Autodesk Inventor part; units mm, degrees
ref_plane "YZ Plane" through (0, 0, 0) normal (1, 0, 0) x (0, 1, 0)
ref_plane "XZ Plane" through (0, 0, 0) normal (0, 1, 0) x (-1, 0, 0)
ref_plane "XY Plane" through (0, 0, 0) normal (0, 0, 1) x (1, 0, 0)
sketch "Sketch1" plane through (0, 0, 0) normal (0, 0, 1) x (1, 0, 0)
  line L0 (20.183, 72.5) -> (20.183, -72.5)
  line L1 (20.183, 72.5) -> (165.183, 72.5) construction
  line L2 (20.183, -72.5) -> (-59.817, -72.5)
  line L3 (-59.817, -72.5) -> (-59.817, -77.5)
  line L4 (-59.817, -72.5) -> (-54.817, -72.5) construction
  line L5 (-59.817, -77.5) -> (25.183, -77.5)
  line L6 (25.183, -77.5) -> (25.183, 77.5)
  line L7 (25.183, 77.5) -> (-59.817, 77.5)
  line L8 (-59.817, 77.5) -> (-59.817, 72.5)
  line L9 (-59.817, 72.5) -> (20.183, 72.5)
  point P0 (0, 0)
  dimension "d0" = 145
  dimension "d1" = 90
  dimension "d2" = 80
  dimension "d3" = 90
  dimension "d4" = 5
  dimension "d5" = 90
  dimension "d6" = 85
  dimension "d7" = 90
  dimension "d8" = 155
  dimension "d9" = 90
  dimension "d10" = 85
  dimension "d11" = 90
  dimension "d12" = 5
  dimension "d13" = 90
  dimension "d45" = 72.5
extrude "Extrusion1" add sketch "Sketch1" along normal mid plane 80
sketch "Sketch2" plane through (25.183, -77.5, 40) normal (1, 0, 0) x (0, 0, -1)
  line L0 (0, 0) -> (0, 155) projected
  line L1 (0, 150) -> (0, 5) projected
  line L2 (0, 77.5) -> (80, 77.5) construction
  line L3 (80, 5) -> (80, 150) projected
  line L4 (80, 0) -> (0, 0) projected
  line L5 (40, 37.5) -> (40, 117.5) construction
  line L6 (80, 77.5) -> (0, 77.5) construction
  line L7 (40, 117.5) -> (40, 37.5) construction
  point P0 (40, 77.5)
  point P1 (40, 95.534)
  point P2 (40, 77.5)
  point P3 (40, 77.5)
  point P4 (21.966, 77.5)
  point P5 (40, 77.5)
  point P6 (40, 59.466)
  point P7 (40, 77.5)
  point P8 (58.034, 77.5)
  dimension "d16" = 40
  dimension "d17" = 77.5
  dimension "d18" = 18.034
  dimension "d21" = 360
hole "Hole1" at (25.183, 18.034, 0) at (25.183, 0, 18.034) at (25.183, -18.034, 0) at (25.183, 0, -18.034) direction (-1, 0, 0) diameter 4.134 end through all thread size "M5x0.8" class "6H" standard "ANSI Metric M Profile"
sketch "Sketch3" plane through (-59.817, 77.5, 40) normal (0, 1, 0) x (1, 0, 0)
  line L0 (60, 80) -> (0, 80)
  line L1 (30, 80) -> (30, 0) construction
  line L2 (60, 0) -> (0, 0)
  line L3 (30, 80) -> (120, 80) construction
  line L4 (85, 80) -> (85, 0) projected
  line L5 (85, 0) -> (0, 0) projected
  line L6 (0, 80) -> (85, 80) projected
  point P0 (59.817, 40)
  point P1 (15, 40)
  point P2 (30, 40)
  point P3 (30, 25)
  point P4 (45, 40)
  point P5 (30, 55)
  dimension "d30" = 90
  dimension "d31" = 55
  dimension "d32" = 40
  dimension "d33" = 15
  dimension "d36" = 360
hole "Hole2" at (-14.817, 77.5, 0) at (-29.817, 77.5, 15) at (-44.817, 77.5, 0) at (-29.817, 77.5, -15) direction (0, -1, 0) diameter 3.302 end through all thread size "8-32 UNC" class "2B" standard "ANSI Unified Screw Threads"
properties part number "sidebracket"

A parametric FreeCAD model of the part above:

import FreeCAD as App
import Part
import Sketcher
from FreeCAD import Vector
Q = App.Units.Quantity


def add_polygon(sketch, points):
    """Adds a closed chain of lines whose ends are joined by coincident constraints."""
    first, n = sketch.GeometryCount, len(points)
    for a, b in zip(points, points[1:] + points[:1]):
        sketch.addGeometry(Part.LineSegment(App.Vector(*a, 0), App.Vector(*b, 0)), False)
    for i in range(n):
        sketch.addConstraint(Sketcher.Constraint("Coincident", first + i, 2, first + (i + 1) % n, 1))

doc = App.newDocument("Part")
params = doc.addObject("Spreadsheet::Sheet", "Params")
for row, (alias, value) in enumerate([
    ("sketch1_width", "80 mm"),
    ("sketch1_width2", "85 mm"),
    ("sketch1_height", "145 mm"),
    ("sketch1_height2", "5 mm"),
    ("pad1_length", "80 mm"),
    ("hole_diameter", "4.134 mm"),
    ("hole2_diameter", "3.302 mm"),
], start=1):
    params.set(f"A{row}", alias)
    params.set(f"B{row}", "=" + value)
    params.setAlias(f"B{row}", alias)

body = doc.addObject("PartDesign::Body", "Body")

# Sketch on XY plane
sketch1 = body.newObject("Sketcher::SketchObject", "Sketch")
sketch1.AttachmentSupport = (doc.getObject("XY_Plane"), [""])
sketch1.MapMode = "FlatFace"
add_polygon(sketch1, [(-59.817, 72.5), (20.183, 72.5), (20.183, -72.5), (-59.817, -72.5), (-59.817, -77.5), (25.183, -77.5), (25.183, 77.5), (-59.817, 77.5)])  # lines 0-7
sketch1.addConstraint([
    Sketcher.Constraint("Horizontal", 0),
    Sketcher.Constraint("Vertical", 1),
    Sketcher.Constraint("Horizontal", 2),
    Sketcher.Constraint("Vertical", 3),
    Sketcher.Constraint("Horizontal", 4),
    Sketcher.Constraint("Vertical", 5),
    Sketcher.Constraint("Horizontal", 6),
    Sketcher.Constraint("Vertical", 7),
    Sketcher.Constraint("Symmetric", 3, 2, 6, 2, -1),
    Sketcher.Constraint("Equal", 3, 7),
    Sketcher.Constraint("DistanceX", 0, 1, 0, 2, Q("80 mm")),
    Sketcher.Constraint("DistanceX", 4, 1, 4, 2, Q("85 mm")),
    Sketcher.Constraint("DistanceY", 1, 2, 1, 1, Q("145 mm")),
    Sketcher.Constraint("DistanceY", 3, 2, 3, 1, Q("5 mm")),
    Sketcher.Constraint("DistanceX", -1, 1, 0, 2, Q("20.183 mm")),
])
sketch1.setExpression("Constraints[18]", "Params.sketch1_width")
sketch1.setExpression("Constraints[19]", "Params.sketch1_width2")
sketch1.setExpression("Constraints[20]", "Params.sketch1_height")
sketch1.setExpression("Constraints[21]", "Params.sketch1_height2")
pad1 = body.newObject("PartDesign::Pad", "Pad")
pad1.Profile = sketch1
pad1.setExpression("Length", "Params.pad1_length")
pad1.Midplane = True

# Sketch on YZ plane
sketch2 = body.newObject("Sketcher::SketchObject", "Sketch001")
sketch2.AttachmentSupport = (doc.getObject("YZ_Plane"), [""])
sketch2.MapMode = "FlatFace"
sketch2.AttachmentOffset = App.Placement(Vector(0, 0, 25.183), App.Rotation())
sketch2.addGeometry([
    Part.Circle(Vector(18.034, 0, 0), Vector(0, 0, 1), 2.067),
    Part.Circle(Vector(0, 18.034, 0), Vector(0, 0, 1), 2.067),
    Part.Circle(Vector(-18.034, 0, 0), Vector(0, 0, 1), 2.067),
    Part.Circle(Vector(0, -18.034, 0), Vector(0, 0, 1), 2.067),
], False)
sketch2.addConstraint([
    Sketcher.Constraint("Equal", 0, 1),
    Sketcher.Constraint("Equal", 1, 2),
    Sketcher.Constraint("Equal", 2, 3),
    Sketcher.Constraint("Symmetric", 0, 3, 2, 3, -1, 1),
    Sketcher.Constraint("Symmetric", 1, 3, 3, 3, -1, 1),
    Sketcher.Constraint("PointOnObject", 0, 3, -1),
    Sketcher.Constraint("PointOnObject", 1, 3, -2),
    Sketcher.Constraint("Diameter", 0, Q("4.134 mm")),
    Sketcher.Constraint("DistanceX", -1, 1, 0, 3, Q("18.034 mm")),
    Sketcher.Constraint("DistanceY", -1, 1, 1, 3, Q("18.034 mm")),
])
doc.recompute()
hole = body.newObject("PartDesign::Hole", "Hole")
hole.Profile = sketch2
hole.ThreadType = "None"
hole.setExpression("Diameter", "Params.hole_diameter")
hole.DepthType = "ThroughAll"

# Sketch on XZ plane
sketch3 = body.newObject("Sketcher::SketchObject", "Sketch002")
sketch3.AttachmentSupport = (doc.getObject("XZ_Plane"), [""])
sketch3.MapMode = "FlatFace"
sketch3.AttachmentOffset = App.Placement(Vector(0, 0, -77.5), App.Rotation())
sketch3.addGeometry([
    Part.Circle(Vector(-14.817, 0, 0), Vector(0, 0, 1), 1.651),
    Part.Circle(Vector(-29.817, 15, 0), Vector(0, 0, 1), 1.651),
    Part.Circle(Vector(-44.817, 0, 0), Vector(0, 0, 1), 1.651),
    Part.Circle(Vector(-29.817, -15, 0), Vector(0, 0, 1), 1.651),
], False)
sketch3.addConstraint([
    Sketcher.Constraint("Equal", 0, 1),
    Sketcher.Constraint("Equal", 1, 2),
    Sketcher.Constraint("Equal", 2, 3),
    Sketcher.Constraint("Symmetric", 1, 3, 3, 3, -1),
    Sketcher.Constraint("PointOnObject", 0, 3, -1),
    Sketcher.Constraint("PointOnObject", 2, 3, -1),
    Sketcher.Constraint("Diameter", 0, Q("3.302 mm")),
    Sketcher.Constraint("DistanceY", -1, 1, 1, 3, Q("15 mm")),
    Sketcher.Constraint("DistanceX", 1, 3, 0, 3, Q("15 mm")),
    Sketcher.Constraint("DistanceX", 2, 3, 1, 3, Q("15 mm")),
    Sketcher.Constraint("DistanceX", 0, 3, -1, 1, Q("14.817 mm")),
])
doc.recompute()
hole2 = body.newObject("PartDesign::Hole", "Hole001")
hole2.Profile = sketch3
hole2.ThreadType = "None"
hole2.setExpression("Diameter", "Params.hole2_diameter")
hole2.DepthType = "ThroughAll"
hole2.Reversed = True

doc.recompute()
